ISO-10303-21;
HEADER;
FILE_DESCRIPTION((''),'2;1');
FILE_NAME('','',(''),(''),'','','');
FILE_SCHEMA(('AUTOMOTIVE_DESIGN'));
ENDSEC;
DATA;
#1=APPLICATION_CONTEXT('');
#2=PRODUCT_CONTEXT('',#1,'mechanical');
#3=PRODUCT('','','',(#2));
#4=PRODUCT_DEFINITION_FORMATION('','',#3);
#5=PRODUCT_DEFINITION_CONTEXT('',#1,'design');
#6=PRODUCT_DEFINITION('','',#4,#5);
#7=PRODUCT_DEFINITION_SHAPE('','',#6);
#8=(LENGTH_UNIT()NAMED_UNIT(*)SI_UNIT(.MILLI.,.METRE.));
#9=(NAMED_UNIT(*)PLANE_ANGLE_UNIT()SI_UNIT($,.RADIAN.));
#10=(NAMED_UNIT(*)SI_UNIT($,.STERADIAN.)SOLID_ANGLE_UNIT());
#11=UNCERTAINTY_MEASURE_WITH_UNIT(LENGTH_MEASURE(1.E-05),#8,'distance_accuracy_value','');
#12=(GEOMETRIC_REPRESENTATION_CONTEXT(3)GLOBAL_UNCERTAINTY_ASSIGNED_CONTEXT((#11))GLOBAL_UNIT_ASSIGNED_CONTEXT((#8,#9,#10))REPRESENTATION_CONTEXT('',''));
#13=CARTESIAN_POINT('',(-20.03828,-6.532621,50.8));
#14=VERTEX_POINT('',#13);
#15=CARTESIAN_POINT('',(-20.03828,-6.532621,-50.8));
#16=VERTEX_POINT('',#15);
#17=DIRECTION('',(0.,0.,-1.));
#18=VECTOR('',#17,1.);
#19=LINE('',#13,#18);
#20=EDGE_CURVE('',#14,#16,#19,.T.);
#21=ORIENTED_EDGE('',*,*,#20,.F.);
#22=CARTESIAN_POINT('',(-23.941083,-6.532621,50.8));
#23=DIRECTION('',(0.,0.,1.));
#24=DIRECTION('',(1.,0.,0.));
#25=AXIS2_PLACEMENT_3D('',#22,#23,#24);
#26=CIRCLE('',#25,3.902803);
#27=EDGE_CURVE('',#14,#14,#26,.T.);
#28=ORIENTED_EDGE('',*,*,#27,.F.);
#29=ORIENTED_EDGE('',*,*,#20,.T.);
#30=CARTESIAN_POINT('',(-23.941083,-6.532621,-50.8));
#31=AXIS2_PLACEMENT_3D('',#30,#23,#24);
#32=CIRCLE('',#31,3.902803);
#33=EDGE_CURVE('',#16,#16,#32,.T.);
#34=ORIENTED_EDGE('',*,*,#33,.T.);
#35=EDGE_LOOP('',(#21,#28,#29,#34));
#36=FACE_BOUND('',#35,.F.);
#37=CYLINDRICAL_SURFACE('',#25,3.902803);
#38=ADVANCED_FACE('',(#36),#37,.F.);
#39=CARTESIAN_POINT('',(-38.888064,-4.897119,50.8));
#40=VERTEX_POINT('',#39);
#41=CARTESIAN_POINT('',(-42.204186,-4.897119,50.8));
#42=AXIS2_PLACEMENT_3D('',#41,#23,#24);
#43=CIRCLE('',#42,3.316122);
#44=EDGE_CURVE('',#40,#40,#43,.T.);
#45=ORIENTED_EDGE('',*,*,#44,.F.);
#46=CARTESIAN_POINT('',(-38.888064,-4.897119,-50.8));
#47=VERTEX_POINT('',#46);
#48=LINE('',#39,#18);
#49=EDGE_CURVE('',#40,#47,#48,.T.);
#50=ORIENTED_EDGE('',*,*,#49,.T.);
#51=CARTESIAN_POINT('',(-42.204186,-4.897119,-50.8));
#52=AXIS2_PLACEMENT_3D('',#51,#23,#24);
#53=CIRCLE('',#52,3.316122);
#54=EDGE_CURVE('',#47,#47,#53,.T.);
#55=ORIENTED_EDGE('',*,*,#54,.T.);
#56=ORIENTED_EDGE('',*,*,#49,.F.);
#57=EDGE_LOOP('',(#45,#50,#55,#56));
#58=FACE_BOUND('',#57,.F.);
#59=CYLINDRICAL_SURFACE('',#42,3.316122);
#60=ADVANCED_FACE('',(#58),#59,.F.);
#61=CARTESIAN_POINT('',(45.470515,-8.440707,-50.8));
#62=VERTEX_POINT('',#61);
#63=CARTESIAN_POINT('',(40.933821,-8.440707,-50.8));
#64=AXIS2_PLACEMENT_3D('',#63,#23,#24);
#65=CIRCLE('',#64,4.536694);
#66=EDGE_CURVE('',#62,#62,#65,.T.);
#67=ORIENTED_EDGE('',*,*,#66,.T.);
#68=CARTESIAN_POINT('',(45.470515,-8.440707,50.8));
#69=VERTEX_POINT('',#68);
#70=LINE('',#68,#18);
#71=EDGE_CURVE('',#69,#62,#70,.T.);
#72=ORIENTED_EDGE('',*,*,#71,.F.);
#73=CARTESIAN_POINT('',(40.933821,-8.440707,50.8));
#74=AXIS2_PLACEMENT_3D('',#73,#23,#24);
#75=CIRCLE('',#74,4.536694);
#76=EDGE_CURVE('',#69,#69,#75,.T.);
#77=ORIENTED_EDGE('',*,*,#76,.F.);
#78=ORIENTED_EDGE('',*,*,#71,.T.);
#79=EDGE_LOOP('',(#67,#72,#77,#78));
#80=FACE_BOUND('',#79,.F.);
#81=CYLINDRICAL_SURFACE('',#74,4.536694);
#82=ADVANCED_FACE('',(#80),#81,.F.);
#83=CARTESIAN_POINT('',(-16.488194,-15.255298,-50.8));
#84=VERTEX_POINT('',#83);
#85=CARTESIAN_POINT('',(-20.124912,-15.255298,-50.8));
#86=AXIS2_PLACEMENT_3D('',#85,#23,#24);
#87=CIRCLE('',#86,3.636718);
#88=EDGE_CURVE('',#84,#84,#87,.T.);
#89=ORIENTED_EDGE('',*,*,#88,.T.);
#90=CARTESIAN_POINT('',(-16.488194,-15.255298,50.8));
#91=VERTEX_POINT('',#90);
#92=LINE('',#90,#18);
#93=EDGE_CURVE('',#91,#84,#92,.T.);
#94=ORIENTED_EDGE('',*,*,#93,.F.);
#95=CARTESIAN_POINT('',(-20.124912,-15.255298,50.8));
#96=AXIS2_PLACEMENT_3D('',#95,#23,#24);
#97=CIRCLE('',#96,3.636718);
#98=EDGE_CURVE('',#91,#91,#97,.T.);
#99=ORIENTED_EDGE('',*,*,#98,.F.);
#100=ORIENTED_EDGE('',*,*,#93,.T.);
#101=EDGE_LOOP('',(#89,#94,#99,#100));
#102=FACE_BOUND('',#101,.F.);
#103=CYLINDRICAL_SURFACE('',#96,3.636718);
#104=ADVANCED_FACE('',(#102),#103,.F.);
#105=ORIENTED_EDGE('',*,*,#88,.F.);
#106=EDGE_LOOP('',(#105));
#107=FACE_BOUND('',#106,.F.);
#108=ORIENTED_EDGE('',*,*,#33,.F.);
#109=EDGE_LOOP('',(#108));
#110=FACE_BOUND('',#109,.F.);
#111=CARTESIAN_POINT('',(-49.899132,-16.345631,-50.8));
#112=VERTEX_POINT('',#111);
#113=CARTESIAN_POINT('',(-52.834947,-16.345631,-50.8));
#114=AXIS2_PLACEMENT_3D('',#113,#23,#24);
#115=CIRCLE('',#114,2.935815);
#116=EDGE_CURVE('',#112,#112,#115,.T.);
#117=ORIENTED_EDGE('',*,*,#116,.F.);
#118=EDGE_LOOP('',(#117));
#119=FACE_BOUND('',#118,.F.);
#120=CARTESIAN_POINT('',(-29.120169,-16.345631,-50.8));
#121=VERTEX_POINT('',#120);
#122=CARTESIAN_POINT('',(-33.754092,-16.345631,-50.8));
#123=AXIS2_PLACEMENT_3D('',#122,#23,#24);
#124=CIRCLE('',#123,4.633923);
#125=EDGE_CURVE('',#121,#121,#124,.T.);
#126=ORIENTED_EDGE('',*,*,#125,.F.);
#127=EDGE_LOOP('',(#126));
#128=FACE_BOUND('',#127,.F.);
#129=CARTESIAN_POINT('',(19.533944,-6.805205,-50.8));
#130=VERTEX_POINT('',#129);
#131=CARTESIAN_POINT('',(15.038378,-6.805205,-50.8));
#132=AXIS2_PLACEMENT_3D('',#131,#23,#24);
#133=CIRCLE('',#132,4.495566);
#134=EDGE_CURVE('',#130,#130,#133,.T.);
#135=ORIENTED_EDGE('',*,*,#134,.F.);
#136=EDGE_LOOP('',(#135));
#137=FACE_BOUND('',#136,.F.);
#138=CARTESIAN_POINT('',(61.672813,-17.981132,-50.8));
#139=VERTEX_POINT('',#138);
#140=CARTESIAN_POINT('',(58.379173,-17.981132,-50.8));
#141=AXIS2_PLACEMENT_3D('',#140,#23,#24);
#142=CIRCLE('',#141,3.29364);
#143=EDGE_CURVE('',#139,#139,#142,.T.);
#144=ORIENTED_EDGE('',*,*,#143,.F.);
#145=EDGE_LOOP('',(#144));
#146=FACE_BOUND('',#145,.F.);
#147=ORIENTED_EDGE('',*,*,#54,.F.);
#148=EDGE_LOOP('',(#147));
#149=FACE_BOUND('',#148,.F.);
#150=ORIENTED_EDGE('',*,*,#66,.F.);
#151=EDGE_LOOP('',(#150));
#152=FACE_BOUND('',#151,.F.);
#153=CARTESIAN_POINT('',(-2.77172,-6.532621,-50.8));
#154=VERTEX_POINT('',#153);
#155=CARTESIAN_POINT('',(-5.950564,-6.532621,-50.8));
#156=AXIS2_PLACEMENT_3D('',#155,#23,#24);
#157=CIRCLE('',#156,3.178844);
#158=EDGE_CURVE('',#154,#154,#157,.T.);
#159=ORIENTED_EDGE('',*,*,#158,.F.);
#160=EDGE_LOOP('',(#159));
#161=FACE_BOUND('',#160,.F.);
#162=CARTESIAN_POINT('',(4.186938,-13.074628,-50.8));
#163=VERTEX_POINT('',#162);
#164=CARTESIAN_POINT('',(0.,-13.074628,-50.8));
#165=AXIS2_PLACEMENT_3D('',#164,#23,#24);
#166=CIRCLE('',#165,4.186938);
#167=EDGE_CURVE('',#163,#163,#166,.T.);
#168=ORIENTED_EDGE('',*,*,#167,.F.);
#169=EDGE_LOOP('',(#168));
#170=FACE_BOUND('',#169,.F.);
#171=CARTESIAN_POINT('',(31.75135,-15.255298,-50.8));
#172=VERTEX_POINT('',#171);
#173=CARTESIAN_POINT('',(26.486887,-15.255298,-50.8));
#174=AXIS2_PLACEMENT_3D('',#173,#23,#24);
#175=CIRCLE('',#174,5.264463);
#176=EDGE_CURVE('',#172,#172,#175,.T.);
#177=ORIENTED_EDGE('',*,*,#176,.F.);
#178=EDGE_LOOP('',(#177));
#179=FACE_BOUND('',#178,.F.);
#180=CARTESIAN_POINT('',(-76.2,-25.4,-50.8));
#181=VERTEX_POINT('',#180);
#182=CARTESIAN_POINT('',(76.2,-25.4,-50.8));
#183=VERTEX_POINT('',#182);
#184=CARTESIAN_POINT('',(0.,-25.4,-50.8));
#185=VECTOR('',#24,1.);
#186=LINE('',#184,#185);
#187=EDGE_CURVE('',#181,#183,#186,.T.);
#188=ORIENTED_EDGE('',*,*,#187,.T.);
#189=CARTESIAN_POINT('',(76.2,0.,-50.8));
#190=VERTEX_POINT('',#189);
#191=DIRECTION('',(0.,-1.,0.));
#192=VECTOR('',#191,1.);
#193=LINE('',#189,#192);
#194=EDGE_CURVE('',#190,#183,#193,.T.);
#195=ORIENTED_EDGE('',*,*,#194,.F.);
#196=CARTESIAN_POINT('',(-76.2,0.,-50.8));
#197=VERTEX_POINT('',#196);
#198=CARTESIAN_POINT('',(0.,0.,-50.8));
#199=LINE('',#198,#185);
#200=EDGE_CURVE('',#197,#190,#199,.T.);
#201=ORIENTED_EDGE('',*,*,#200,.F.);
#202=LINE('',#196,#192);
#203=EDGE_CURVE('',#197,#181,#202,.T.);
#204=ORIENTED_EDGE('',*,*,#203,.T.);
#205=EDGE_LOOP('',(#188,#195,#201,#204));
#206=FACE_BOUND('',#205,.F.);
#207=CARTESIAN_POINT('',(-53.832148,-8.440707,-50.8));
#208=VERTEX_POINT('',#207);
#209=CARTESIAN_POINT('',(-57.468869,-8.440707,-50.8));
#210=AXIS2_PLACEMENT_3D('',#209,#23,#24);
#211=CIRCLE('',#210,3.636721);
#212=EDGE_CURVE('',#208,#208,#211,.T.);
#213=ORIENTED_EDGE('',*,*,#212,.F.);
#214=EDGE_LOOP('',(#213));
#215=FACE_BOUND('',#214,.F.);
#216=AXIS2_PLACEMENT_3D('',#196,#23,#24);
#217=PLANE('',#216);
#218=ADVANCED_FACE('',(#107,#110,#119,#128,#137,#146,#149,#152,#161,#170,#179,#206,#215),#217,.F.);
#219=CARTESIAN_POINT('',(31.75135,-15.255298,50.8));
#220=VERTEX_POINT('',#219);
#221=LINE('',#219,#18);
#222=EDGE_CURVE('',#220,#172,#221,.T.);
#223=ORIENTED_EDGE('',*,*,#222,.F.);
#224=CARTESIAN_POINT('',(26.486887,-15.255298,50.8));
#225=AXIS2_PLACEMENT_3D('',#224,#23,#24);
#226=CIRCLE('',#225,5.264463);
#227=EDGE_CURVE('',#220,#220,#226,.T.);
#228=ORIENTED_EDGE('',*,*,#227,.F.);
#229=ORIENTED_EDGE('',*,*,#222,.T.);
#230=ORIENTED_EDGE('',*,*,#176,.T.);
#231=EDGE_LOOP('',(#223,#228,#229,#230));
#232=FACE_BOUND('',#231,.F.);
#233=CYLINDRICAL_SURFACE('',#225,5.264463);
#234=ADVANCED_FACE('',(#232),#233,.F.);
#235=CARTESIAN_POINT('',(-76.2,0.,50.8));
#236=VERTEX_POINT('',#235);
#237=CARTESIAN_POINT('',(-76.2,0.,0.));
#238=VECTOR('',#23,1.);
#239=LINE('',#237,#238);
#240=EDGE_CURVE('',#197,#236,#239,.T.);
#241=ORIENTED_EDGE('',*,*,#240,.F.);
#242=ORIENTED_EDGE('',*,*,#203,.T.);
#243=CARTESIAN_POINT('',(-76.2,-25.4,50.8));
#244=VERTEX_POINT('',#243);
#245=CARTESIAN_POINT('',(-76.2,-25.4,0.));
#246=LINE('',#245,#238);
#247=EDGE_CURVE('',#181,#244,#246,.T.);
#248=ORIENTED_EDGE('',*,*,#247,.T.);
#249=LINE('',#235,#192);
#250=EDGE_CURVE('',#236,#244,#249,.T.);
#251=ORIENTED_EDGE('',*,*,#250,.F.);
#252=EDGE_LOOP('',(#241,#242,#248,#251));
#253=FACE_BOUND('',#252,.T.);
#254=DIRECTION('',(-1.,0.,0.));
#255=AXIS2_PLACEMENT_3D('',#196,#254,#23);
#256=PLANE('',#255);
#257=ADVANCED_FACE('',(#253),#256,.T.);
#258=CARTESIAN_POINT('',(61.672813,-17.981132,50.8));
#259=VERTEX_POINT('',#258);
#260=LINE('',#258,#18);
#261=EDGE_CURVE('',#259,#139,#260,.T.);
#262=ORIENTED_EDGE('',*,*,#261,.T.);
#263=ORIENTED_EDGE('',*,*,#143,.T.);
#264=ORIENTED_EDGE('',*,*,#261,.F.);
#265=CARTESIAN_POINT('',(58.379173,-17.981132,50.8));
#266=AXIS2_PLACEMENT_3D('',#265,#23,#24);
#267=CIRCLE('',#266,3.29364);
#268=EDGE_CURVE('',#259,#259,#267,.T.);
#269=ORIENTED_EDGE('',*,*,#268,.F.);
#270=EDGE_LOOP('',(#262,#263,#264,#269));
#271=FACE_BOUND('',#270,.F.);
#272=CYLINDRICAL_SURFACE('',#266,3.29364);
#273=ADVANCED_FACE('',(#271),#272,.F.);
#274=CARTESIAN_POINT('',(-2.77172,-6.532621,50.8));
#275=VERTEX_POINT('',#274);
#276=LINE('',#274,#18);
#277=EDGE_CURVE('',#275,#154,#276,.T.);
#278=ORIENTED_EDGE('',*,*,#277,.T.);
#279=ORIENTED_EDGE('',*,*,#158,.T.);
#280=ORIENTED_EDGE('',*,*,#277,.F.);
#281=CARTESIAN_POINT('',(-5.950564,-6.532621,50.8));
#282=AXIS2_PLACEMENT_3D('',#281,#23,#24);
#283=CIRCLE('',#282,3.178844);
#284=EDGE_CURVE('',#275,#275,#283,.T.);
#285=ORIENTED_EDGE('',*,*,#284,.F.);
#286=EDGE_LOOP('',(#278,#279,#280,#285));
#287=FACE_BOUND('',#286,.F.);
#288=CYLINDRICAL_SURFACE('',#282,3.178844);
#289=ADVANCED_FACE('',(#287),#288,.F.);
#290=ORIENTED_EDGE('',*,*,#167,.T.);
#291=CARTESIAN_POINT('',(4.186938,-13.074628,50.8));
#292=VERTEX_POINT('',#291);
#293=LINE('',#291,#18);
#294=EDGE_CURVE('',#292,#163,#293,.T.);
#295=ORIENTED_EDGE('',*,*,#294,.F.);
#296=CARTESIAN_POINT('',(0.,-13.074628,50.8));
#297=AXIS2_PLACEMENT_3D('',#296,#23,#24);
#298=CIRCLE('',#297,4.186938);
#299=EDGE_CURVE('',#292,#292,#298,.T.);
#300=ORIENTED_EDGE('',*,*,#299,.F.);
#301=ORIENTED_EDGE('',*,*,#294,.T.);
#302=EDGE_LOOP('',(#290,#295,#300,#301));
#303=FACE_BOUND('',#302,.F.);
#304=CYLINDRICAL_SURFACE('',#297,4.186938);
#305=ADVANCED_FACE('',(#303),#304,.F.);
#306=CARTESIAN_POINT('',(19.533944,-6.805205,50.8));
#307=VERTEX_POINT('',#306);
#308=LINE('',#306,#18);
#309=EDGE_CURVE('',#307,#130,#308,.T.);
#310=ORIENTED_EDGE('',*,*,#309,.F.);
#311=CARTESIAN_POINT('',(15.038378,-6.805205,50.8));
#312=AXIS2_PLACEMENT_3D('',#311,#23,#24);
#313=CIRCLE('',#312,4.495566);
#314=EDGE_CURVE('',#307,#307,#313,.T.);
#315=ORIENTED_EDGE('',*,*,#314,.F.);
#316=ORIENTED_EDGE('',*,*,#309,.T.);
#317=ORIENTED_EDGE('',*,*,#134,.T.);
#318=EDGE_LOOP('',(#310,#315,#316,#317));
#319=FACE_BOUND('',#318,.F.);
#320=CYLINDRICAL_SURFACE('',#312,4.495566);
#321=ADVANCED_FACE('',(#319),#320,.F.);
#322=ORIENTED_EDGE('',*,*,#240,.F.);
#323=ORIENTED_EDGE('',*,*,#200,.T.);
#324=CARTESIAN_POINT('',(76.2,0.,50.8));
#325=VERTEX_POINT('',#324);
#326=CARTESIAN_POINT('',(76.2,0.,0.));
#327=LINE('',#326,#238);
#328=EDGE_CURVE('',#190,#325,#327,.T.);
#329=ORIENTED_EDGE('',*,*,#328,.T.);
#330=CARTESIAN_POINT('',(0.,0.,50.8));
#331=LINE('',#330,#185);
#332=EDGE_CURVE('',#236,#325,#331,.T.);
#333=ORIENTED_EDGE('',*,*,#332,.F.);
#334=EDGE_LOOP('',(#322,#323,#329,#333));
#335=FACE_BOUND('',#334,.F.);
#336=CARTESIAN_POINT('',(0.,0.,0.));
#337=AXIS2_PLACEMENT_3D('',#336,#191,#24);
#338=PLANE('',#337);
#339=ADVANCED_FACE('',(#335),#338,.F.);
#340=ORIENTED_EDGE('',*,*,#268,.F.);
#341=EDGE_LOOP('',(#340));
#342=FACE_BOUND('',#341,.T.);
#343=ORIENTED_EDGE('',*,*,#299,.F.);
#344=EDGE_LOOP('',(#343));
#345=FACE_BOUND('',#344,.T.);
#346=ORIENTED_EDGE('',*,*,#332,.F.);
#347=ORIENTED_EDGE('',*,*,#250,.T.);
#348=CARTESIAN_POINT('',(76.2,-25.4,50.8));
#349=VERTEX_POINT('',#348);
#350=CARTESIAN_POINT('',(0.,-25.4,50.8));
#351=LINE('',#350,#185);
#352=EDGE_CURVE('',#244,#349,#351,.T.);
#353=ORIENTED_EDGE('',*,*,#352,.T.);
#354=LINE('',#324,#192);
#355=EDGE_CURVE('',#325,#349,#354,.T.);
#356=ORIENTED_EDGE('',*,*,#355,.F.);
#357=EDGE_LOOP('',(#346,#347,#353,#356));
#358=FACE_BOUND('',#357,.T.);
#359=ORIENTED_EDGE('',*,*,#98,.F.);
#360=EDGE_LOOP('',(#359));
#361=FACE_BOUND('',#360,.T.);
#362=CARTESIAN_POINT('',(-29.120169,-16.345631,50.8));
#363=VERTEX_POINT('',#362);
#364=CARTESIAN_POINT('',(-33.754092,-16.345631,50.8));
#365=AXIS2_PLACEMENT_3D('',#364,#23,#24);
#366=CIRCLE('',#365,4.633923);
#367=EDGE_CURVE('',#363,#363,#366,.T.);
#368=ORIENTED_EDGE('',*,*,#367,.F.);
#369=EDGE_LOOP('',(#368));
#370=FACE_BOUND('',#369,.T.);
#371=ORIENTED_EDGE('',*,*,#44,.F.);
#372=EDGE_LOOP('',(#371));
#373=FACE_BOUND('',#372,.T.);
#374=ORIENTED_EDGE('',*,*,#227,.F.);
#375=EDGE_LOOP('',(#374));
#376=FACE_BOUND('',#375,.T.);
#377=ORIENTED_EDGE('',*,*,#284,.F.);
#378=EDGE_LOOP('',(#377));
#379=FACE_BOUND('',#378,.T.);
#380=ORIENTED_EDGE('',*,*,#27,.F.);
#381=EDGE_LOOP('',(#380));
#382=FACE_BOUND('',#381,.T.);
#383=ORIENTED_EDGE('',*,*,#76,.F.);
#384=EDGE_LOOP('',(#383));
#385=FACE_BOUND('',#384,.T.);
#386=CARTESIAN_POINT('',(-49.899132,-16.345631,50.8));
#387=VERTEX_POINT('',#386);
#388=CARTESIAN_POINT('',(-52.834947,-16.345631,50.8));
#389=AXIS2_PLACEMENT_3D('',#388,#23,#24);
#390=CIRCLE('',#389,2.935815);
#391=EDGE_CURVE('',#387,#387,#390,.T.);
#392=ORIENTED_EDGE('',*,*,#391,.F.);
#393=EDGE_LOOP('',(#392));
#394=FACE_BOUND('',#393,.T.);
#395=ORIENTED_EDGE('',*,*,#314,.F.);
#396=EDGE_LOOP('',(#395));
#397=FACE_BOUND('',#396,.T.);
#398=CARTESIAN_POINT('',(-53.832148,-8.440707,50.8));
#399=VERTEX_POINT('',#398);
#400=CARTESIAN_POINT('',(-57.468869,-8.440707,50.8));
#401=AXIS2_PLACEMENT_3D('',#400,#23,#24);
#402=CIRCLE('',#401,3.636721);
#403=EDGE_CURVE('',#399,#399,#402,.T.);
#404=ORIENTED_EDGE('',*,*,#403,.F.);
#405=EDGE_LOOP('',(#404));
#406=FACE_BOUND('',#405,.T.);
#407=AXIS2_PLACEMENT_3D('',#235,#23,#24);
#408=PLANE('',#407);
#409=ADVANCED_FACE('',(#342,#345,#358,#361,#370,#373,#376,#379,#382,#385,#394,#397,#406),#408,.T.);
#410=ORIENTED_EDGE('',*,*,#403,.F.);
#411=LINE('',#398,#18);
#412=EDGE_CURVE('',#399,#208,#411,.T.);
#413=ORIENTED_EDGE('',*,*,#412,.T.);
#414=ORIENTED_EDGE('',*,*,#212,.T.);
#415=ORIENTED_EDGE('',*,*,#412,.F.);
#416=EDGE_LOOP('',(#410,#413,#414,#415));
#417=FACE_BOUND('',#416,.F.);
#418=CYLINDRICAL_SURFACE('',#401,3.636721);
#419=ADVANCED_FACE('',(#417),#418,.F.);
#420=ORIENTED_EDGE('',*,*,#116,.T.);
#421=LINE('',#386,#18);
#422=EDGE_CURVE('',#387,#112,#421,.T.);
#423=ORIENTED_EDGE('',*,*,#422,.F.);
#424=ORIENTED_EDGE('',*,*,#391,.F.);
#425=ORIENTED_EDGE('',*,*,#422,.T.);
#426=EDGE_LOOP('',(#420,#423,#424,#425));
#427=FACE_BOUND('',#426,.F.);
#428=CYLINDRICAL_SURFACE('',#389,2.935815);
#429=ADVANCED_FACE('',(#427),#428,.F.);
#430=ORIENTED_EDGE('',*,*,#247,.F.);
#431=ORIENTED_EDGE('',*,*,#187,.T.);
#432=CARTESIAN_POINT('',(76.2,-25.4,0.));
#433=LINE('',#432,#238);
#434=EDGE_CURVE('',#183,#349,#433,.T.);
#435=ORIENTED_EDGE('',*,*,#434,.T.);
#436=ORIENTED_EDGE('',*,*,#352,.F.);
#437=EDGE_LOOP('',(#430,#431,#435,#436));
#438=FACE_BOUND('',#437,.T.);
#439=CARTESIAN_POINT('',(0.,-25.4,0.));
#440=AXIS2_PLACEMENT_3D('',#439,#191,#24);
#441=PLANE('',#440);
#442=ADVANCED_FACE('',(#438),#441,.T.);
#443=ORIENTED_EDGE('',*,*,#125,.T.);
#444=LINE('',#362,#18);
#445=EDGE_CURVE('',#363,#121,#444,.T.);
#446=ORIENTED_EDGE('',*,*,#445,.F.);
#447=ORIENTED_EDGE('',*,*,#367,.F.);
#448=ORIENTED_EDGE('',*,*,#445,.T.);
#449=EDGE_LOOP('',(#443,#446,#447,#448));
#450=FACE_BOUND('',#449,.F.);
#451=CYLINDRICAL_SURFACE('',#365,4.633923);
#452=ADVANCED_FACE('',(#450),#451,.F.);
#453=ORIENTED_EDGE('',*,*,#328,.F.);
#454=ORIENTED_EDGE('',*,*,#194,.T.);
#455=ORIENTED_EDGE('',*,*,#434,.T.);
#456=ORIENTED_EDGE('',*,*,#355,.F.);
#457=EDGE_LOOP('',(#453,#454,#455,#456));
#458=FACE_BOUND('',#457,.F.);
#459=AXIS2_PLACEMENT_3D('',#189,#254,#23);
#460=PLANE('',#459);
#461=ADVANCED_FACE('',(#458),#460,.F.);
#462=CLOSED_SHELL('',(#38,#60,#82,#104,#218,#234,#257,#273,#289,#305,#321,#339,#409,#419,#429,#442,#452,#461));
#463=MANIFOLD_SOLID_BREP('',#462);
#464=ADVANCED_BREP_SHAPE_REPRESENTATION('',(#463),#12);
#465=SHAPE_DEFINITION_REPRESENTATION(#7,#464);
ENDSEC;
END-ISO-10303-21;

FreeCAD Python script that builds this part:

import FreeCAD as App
import Part
import Sketcher
from FreeCAD import Vector
Q = App.Units.Quantity


def add_polygon(sketch, points):
    """Adds a closed chain of lines whose ends are joined by coincident constraints."""
    first, n = sketch.GeometryCount, len(points)
    for a, b in zip(points, points[1:] + points[:1]):
        sketch.addGeometry(Part.LineSegment(App.Vector(*a, 0), App.Vector(*b, 0)), False)
    for i in range(n):
        sketch.addConstraint(Sketcher.Constraint("Coincident", first + i, 2, first + (i + 1) % n, 1))

doc = App.newDocument("Part")
body = doc.addObject("PartDesign::Body", "Body")

sketch1 = body.newObject("Sketcher::SketchObject", "Sketch")
sketch1.AttachmentSupport = (doc.getObject("XZ_Plane"), [""])
sketch1.MapMode = "FlatFace"
add_polygon(sketch1, [(-76, 51), (-76, -51), (76, -51), (76, 51)])
sketch1.addConstraint([
    Sketcher.Constraint("Vertical", 0),
    Sketcher.Constraint("Horizontal", 1),
    Sketcher.Constraint("Vertical", 2),
    Sketcher.Constraint("Horizontal", 3),
    Sketcher.Constraint("Symmetric", 0, 2, 2, 2, -1, 1),
    Sketcher.Constraint("DistanceX", 1, 1, 1, 2, Q("6 in")),
    Sketcher.Constraint("DistanceY", 0, 2, 0, 1, Q("4 in")),
])
pad1 = body.newObject("PartDesign::Pad", "Pad")
pad1.Profile = sketch1
pad1.Length = Q("1 in")

sketch2 = body.newObject("Sketcher::SketchObject", "Sketch001")
sketch2.AttachmentSupport = (doc.getObject("XY_Plane"), [""])
sketch2.MapMode = "FlatFace"
sketch2.AttachmentOffset = App.Placement(Vector(0, 0, 2 * 25.4), App.Rotation())
sketch2.addGeometry([
    Part.Circle(Vector(0, -13.1, 0), Vector(0, 0, 1), 4.2),
    Part.Circle(Vector(-57.5, -8.4, 0), Vector(0, 0, 1), 3.6),
    Part.Circle(Vector(-33.8, -16.3, 0), Vector(0, 0, 1), 4.6),
    Part.Circle(Vector(40.9, -8.4, 0), Vector(0, 0, 1), 4.5),
    Part.Circle(Vector(26.5, -15.3, 0), Vector(0, 0, 1), 5.3),
    Part.Circle(Vector(58.4, -18, 0), Vector(0, 0, 1), 3.3),
    Part.Circle(Vector(15, -6.8, 0), Vector(0, 0, 1), 4.5),
    Part.Circle(Vector(-23.9, -6.5, 0), Vector(0, 0, 1), 3.9),
    Part.Circle(Vector(-20.1, -15.3, 0), Vector(0, 0, 1), 3.6),
    Part.Circle(Vector(-52.8, -16.3, 0), Vector(0, 0, 1), 2.9),
    Part.Circle(Vector(-42.2, -4.9, 0), Vector(0, 0, 1), 3.3),
    Part.Circle(Vector(-6, -6.5, 0), Vector(0, 0, 1), 3.2),
], False)
sketch2.addConstraint([
    Sketcher.Constraint("PointOnObject", 0, 3, -2),
    Sketcher.Constraint("Horizontal", 1, 3, 3, 3),
    Sketcher.Constraint("Horizontal", 4, 3, 8, 3),
    Sketcher.Constraint("Horizontal", 2, 3, 9, 3),
    Sketcher.Constraint("Horizontal", 7, 3, 11, 3),
    Sketcher.Constraint("Diameter", 5, 6.58728),
    Sketcher.Constraint("Diameter", 9, 5.87163),
    Sketcher.Constraint("Diameter", 0, 8.373876),
    Sketcher.Constraint("Diameter", 1, 7.273442),
    Sketcher.Constraint("Diameter", 2, 9.267846),
    Sketcher.Constraint("Diameter", 3, 9.073388),
    Sketcher.Constraint("Diameter", 4, 10.528926),
    Sketcher.Constraint("Diameter", 6, 8.991132),
    Sketcher.Constraint("Diameter", 7, 7.805606),
    Sketcher.Constraint("Diameter", 8, 7.273436),
    Sketcher.Constraint("Diameter", 10, 6.632244),
    Sketcher.Constraint("Diameter", 11, 6.357688),
    Sketcher.Constraint("DistanceY", 10, 3, -1, 1, Q("0.1928 in")),
    Sketcher.Constraint("DistanceY", 5, 3, 2, 3, 1.635501),
    Sketcher.Constraint("DistanceY", 3, 3, 6, 3, 1.635502),
    Sketcher.Constraint("DistanceY", 7, 3, 10, 3, 1.635502),
    Sketcher.Constraint("DistanceX", 1, 3, -1, 1, 57.468869),
    Sketcher.Constraint("DistanceY", 2, 3, -1, 1, 16.345631),
    Sketcher.Constraint("DistanceX", -1, 1, 3, 3, 40.933821),
    Sketcher.Constraint("DistanceX", 8, 3, -1, 1, 20.124912),
    Sketcher.Constraint("DistanceY", 0, 3, 1, 3, 4.633921),
    Sketcher.Constraint("DistanceY", 4, 3, 3, 3, 6.814591),
    Sketcher.Constraint("DistanceX", 2, 3, 4, 3, 60.240979),
    Sketcher.Constraint("DistanceX", 3, 3, 5, 3, 17.445352),
    Sketcher.Constraint("DistanceX", 6, 3, 4, 3, 11.448509),
    Sketcher.Constraint("DistanceX", 2, 3, 7, 3, 9.813009),
    Sketcher.Constraint("DistanceX", 7, 3, 8, 3, 3.816171),
    Sketcher.Constraint("DistanceX", 1, 3, 9, 3, 4.633922),
    Sketcher.Constraint("DistanceX", 9, 3, 10, 3, 10.630761),
    Sketcher.Constraint("DistanceY", 8, 3, 10, 3, 10.358179),
    Sketcher.Constraint("DistanceX", 7, 3, 11, 3, 17.990519),
])
pocket1 = body.newObject("PartDesign::Pocket", "Pocket")
pocket1.Profile = sketch2
pocket1.Length = Q("6 in")

doc.recompute()
